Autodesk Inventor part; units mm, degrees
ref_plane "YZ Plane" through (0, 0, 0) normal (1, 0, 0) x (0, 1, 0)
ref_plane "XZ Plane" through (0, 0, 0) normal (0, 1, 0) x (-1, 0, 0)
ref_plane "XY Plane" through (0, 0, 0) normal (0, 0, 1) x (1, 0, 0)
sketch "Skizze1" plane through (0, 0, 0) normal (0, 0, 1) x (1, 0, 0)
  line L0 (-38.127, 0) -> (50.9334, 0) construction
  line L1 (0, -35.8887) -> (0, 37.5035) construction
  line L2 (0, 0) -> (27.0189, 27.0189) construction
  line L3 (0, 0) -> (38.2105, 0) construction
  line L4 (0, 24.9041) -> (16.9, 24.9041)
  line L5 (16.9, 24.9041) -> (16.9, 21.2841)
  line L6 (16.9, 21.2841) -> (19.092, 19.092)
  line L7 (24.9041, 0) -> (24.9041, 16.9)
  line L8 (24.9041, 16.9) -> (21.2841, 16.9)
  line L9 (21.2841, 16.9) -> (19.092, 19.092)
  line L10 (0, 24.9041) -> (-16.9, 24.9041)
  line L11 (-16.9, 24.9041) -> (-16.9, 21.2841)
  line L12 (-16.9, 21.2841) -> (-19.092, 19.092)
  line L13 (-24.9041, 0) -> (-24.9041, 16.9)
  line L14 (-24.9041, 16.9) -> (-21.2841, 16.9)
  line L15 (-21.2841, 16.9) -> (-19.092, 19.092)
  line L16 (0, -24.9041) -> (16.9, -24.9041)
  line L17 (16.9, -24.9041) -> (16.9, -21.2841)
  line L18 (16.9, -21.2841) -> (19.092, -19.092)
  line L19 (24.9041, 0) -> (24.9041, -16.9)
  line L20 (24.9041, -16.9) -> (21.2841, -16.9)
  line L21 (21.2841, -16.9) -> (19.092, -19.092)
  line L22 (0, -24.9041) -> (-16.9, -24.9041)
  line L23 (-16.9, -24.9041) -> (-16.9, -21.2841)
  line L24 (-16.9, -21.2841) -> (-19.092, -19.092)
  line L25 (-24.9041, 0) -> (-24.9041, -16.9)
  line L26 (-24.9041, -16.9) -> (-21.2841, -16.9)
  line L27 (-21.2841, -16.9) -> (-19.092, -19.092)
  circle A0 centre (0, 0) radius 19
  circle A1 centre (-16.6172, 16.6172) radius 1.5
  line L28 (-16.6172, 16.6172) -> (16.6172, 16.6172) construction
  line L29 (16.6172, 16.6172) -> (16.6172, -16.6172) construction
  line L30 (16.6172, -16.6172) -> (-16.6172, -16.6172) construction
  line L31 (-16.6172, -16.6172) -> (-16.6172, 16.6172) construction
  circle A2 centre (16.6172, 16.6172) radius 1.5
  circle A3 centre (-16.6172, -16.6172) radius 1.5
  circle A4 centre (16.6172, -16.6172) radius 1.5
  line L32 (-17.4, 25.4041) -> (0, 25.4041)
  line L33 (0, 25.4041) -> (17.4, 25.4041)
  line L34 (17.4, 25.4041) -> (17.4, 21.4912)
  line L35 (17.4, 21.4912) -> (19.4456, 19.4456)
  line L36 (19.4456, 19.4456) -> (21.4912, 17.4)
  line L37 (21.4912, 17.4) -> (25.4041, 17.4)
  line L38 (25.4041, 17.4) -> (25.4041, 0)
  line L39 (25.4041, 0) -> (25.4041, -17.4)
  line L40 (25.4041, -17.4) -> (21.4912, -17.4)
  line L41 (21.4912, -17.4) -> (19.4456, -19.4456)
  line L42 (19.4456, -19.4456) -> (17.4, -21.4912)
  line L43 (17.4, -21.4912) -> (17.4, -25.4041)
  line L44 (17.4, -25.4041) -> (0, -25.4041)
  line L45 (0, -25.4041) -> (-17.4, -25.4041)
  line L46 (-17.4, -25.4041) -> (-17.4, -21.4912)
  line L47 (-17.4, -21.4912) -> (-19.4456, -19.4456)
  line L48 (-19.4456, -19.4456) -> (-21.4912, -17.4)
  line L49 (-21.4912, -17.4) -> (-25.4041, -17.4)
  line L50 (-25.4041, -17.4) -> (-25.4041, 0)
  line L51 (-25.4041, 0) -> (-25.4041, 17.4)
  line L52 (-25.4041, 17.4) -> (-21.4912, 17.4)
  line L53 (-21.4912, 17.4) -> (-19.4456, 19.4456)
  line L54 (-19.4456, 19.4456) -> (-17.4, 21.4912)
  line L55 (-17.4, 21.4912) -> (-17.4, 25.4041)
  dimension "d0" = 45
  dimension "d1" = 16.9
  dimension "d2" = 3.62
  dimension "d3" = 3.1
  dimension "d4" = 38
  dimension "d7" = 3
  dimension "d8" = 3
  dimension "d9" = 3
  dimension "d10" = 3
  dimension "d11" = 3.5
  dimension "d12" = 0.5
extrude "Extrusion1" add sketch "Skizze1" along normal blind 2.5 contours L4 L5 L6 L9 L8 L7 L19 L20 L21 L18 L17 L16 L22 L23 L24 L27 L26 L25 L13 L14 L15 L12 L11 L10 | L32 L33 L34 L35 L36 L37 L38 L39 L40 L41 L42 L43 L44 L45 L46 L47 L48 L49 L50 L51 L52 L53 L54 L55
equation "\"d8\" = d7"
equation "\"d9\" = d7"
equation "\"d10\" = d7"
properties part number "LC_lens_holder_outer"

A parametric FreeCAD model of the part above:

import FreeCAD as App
import Part
import Sketcher
Q = App.Units.Quantity


def add_polygon(sketch, points):
    """Adds a closed chain of lines whose ends are joined by coincident constraints."""
    first, n = sketch.GeometryCount, len(points)
    for a, b in zip(points, points[1:] + points[:1]):
        sketch.addGeometry(Part.LineSegment(App.Vector(*a, 0), App.Vector(*b, 0)), False)
    for i in range(n):
        sketch.addConstraint(Sketcher.Constraint("Coincident", first + i, 2, first + (i + 1) % n, 1))

doc = App.newDocument("Part")
body = doc.addObject("PartDesign::Body", "Body")

# Sketch on XY plane
sketch1 = body.newObject("Sketcher::SketchObject", "Sketch")
sketch1.AttachmentSupport = (doc.getObject("XY_Plane"), [""])
sketch1.MapMode = "FlatFace"
add_polygon(sketch1, [(-17.4, 25.4), (-17.4, 21.5), (-21.5, 17.4), (-25.4, 17.4), (-25.4, -17.4), (-21.5, -17.4), (-17.4, -21.5), (-17.4, -25.4), (17.4, -25.4), (17.4, -21.5), (21.5, -17.4), (25.4, -17.4), (25.4, 17.4), (21.5, 17.4), (17.4, 21.5), (17.4, 25.4)])  # lines 0-15
sketch1.addGeometry(Part.Circle(App.Vector(-16.6, -16.6, 0), App.Vector(0, 0, 1), 1.5), False)  # 16
sketch1.addGeometry(Part.Circle(App.Vector(16.6, -16.6, 0), App.Vector(0, 0, 1), 1.5), False)  # 17
sketch1.addGeometry(Part.Circle(App.Vector(-16.6, 16.6, 0), App.Vector(0, 0, 1), 1.5), False)  # 18
sketch1.addGeometry(Part.Circle(App.Vector(0, 0, 0), App.Vector(0, 0, 1), 19), False)  # 19
sketch1.addGeometry(Part.Circle(App.Vector(16.6, 16.6, 0), App.Vector(0, 0, 1), 1.5), False)  # 20
sketch1.addConstraint([
    Sketcher.Constraint("Vertical", 0),
    Sketcher.Constraint("Horizontal", 2),
    Sketcher.Constraint("Vertical", 3),
    Sketcher.Constraint("Horizontal", 4),
    Sketcher.Constraint("Vertical", 6),
    Sketcher.Constraint("Horizontal", 7),
    Sketcher.Constraint("Vertical", 8),
    Sketcher.Constraint("Horizontal", 10),
    Sketcher.Constraint("Vertical", 11),
    Sketcher.Constraint("Horizontal", 12),
    Sketcher.Constraint("Vertical", 14),
    Sketcher.Constraint("Horizontal", 15),
    Sketcher.Constraint("Coincident", 19, 3, -1, 1),
    Sketcher.Constraint("Equal", 16, 17),
    Sketcher.Constraint("Equal", 17, 18),
    Sketcher.Constraint("Equal", 18, 20),
    Sketcher.Constraint("Symmetric", 17, 3, 18, 3, -1, 1),
    Sketcher.Constraint("Symmetric", 16, 3, 20, 3, -1, 1),
    Sketcher.Constraint("Symmetric", 0, 2, 8, 2, -1, 1),
    Sketcher.Constraint("Symmetric", 1, 2, 9, 2, -1, 1),
    Sketcher.Constraint("Symmetric", 3, 2, 11, 2, -1, 1),
    Sketcher.Constraint("Symmetric", 5, 2, 13, 2, -1, 1),
    Sketcher.Constraint("Symmetric", 16, 3, 17, 3, -2),
    Sketcher.Constraint("Symmetric", 5, 2, 8, 2, -2),
    Sketcher.Constraint("Symmetric", 4, 2, 9, 2, -2),
    Sketcher.Constraint("Perpendicular", 1, 5),
    Sketcher.Constraint("Perpendicular", 9, 13),
    Sketcher.Constraint("Equal", 12, 0),
    Sketcher.Constraint("Equal", 15, 3),
    Sketcher.Constraint("Equal", 0, 6),
    Sketcher.Constraint("Diameter", 16, Q("3 mm")),
    Sketcher.Constraint("Diameter", 19, Q("38 mm")),
    Sketcher.Constraint("DistanceX", 7, 1, 7, 2, Q("34.8 mm")),
    Sketcher.Constraint("DistanceX", 2, 2, 2, 1, Q("3.913 mm")),
    Sketcher.Constraint("DistanceX", 2, 2, -1, 1, Q("25.404 mm")),
    Sketcher.Constraint("DistanceY", 18, 3, 0, 2, Q("4.874 mm")),
    Sketcher.Constraint("DistanceX", 1, 2, 18, 3, Q("4.874 mm")),
])
pad1 = body.newObject("PartDesign::Pad", "Pad")
pad1.Profile = sketch1
pad1.Length = 2.5

doc.recompute()
